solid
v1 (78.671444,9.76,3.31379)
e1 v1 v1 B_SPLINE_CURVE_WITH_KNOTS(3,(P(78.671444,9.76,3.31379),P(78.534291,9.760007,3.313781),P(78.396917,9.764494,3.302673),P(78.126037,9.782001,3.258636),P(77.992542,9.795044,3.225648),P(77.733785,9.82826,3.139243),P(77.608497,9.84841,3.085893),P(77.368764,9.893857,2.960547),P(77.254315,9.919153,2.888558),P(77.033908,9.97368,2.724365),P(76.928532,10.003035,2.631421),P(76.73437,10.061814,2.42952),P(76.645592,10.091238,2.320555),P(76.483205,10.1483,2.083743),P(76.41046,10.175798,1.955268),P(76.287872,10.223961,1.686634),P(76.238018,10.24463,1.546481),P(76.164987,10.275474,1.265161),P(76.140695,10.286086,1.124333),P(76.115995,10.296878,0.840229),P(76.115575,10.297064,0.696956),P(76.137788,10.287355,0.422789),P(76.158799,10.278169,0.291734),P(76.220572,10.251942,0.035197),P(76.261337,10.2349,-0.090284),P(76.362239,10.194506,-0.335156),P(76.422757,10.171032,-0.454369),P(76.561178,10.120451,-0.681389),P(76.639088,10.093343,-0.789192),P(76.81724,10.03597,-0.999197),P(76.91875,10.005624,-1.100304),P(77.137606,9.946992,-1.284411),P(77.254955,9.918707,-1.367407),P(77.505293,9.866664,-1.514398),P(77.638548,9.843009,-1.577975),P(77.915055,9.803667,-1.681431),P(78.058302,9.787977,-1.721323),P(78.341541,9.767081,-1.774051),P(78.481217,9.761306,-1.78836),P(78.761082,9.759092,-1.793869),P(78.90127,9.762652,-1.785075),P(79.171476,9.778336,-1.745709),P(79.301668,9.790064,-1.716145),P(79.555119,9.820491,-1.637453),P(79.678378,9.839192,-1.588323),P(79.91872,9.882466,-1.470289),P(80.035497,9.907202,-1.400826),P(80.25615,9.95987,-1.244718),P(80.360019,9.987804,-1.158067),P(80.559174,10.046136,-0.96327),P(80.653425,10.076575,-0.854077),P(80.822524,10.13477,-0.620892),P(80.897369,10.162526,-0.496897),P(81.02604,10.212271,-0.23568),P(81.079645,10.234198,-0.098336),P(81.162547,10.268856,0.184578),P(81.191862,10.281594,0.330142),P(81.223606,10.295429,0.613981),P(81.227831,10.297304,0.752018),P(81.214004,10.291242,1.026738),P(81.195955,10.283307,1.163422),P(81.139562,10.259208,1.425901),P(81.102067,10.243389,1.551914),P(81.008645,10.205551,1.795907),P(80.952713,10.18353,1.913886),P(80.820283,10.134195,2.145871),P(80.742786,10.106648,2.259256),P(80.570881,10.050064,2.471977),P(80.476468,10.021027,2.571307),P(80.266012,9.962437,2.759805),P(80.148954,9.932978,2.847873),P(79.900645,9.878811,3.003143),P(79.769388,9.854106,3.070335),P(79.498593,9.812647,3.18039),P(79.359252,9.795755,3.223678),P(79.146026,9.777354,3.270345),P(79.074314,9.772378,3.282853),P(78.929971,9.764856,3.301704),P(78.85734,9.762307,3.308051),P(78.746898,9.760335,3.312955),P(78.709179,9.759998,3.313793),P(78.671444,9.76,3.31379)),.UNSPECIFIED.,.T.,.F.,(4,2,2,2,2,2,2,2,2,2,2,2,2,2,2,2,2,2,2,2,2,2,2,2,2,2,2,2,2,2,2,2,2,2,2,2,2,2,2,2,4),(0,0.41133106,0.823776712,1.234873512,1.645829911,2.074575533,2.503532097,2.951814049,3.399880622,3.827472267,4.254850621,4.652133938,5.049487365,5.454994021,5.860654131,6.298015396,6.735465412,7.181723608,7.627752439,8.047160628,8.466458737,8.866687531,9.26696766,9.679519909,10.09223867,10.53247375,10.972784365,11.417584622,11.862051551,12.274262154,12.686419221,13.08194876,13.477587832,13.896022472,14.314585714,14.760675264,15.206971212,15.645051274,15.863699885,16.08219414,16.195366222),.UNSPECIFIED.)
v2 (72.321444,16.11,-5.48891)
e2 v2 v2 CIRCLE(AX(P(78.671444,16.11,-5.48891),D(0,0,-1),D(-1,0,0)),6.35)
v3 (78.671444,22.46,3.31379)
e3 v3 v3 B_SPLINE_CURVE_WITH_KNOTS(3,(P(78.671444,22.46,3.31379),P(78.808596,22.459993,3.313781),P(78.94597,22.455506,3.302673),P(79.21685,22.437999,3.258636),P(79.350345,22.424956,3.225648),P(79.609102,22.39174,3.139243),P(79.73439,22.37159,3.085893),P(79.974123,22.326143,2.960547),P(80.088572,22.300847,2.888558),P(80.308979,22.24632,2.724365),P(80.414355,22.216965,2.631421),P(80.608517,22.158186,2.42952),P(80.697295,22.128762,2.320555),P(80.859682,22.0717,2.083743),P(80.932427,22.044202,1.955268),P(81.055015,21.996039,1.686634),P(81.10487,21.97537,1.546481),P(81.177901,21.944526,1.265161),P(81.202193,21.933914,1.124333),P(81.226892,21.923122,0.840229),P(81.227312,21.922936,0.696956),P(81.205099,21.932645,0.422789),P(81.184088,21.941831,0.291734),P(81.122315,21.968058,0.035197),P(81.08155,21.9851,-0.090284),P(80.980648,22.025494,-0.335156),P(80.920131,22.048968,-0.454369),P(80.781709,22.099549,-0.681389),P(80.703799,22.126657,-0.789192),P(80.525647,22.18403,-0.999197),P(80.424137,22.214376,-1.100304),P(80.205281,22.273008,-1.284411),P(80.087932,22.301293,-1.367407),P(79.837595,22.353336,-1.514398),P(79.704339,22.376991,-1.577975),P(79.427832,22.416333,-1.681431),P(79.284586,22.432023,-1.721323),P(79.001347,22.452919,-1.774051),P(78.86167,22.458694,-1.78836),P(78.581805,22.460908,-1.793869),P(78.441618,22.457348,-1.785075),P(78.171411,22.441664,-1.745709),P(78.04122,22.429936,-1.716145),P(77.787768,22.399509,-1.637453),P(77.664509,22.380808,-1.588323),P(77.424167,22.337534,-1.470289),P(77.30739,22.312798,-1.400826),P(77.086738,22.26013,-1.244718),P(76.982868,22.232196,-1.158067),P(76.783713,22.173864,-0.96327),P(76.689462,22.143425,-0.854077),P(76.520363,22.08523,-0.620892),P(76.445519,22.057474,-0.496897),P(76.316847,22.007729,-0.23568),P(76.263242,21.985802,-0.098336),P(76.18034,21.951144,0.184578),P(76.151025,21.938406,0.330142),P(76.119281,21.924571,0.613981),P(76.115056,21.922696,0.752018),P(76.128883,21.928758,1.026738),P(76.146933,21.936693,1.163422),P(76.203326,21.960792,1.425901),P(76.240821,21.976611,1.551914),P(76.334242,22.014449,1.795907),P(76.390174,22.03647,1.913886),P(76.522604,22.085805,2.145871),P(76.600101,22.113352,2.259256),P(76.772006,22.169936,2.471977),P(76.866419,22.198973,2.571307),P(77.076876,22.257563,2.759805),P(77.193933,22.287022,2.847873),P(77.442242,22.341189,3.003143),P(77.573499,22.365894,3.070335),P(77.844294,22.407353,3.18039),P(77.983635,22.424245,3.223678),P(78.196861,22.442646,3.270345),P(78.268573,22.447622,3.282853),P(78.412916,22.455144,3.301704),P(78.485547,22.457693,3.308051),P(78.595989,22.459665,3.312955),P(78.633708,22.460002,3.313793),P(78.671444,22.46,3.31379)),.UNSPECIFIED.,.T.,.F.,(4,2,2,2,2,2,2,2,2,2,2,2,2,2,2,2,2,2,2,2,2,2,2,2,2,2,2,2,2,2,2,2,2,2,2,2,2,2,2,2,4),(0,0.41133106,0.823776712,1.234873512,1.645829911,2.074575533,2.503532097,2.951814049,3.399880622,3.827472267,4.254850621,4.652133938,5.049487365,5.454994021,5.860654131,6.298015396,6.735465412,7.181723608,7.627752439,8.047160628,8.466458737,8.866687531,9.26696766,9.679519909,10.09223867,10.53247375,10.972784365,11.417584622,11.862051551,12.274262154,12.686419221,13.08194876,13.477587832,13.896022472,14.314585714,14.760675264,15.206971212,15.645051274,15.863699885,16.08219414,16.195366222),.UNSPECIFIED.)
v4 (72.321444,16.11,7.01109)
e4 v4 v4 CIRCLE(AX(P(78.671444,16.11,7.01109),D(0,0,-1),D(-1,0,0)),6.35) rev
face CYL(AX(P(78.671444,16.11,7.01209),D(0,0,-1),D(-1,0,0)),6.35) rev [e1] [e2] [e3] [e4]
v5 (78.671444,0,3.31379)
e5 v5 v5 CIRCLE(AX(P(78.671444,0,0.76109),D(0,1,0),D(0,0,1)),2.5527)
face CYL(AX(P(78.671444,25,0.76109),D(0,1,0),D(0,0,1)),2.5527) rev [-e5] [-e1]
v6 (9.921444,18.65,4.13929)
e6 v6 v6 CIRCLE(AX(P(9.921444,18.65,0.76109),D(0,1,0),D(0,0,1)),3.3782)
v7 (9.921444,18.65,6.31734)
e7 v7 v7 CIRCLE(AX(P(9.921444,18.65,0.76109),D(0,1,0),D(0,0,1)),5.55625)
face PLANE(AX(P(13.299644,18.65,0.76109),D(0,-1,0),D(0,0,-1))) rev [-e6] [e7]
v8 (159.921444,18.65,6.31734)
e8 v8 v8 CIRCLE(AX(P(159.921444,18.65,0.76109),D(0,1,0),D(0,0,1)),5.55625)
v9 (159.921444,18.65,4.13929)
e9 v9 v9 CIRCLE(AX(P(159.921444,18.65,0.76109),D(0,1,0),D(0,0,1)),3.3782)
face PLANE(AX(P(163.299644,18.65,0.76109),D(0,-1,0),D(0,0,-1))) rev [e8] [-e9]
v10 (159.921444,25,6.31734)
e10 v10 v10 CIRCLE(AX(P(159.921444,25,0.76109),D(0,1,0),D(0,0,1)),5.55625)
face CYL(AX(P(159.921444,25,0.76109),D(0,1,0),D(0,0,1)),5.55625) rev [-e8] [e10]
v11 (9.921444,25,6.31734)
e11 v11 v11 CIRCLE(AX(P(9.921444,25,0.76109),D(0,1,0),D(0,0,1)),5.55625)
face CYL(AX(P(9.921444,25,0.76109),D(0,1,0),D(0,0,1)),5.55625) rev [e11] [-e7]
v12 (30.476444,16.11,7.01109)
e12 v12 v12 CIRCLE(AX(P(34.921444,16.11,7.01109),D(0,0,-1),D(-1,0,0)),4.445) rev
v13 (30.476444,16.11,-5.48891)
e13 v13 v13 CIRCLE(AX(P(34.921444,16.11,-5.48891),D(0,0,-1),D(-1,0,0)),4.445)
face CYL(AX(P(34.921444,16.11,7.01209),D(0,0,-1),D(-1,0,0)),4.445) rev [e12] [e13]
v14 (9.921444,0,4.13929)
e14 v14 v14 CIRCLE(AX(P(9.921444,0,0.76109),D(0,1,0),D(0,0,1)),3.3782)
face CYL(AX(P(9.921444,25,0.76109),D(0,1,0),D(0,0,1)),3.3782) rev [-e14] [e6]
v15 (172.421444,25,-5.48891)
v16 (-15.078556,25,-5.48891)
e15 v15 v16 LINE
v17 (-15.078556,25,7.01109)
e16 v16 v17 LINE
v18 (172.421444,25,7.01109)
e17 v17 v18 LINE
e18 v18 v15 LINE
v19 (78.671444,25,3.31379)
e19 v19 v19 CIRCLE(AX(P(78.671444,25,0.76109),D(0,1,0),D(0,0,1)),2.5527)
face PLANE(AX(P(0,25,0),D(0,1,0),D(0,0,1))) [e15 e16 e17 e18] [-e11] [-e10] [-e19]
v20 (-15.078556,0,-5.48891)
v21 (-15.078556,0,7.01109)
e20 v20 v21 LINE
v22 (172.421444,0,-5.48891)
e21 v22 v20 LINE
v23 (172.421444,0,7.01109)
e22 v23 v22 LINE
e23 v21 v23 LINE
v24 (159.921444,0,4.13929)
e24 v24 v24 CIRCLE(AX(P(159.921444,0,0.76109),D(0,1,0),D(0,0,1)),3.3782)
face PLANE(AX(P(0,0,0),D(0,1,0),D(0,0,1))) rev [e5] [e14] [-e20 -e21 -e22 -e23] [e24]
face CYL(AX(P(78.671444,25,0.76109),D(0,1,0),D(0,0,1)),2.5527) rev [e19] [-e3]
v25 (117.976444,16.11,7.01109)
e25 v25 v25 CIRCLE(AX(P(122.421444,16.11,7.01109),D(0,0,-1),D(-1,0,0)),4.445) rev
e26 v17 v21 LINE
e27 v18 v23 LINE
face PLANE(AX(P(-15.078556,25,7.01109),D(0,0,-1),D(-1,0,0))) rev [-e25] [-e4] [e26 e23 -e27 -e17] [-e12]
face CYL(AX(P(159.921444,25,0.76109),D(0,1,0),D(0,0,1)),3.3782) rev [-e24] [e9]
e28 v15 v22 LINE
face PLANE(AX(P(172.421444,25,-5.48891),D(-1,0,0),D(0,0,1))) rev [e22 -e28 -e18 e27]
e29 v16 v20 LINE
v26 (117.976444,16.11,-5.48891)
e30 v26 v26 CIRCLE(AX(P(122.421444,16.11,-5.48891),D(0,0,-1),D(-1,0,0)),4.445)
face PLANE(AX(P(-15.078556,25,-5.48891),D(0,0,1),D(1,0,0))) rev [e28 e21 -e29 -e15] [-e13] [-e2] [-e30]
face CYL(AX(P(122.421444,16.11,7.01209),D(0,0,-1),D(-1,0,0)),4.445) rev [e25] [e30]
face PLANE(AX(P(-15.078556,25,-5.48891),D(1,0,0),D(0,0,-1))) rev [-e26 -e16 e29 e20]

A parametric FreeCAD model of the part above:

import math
import FreeCAD as App
import Part
import Sketcher
Q = App.Units.Quantity


def add_polygon(sketch, points):
    """Adds a closed chain of lines whose ends are joined by coincident constraints."""
    first, n = sketch.GeometryCount, len(points)
    for a, b in zip(points, points[1:] + points[:1]):
        sketch.addGeometry(Part.LineSegment(App.Vector(*a, 0), App.Vector(*b, 0)), False)
    for i in range(n):
        sketch.addConstraint(Sketcher.Constraint("Coincident", first + i, 2, first + (i + 1) % n, 1))

doc = App.newDocument("Part")
body = doc.addObject("PartDesign::Body", "Body")

# Sketch on XZ plane
sketch1 = body.newObject("Sketcher::SketchObject", "Sketch")
sketch1.AttachmentSupport = (doc.getObject("XZ_Plane"), [""])
sketch1.MapMode = "FlatFace"
add_polygon(sketch1, [(-15, -5), (-15, 7), (172, 7), (172, -5)])  # lines 0-3
sketch1.addConstraint([
    Sketcher.Constraint("Vertical", 0),
    Sketcher.Constraint("Horizontal", 1),
    Sketcher.Constraint("Vertical", 2),
    Sketcher.Constraint("Horizontal", 3),
    Sketcher.Constraint("DistanceX", 1, 1, 1, 2, 187.5),
    Sketcher.Constraint("DistanceY", 0, 1, 0, 2, 12.5),
    Sketcher.Constraint("DistanceY", -1, 1, 0, 2, 7.01109),
    Sketcher.Constraint("DistanceX", 0, 2, -1, 1, 15.078556),
])
pad1 = body.newObject("PartDesign::Pad", "Pad")
pad1.Profile = sketch1
pad1.Length = 25
pad1.Reversed = True

# Sketch on XZ plane
sketch2 = body.newObject("Sketcher::SketchObject", "Sketch001")
sketch2.AttachmentSupport = (doc.getObject("XZ_Plane"), [""])
sketch2.MapMode = "FlatFace"
sketch2.AttachmentOffset = App.Placement(App.Vector(0, 0, -25), App.Rotation())
sketch2.addGeometry([
    Part.Circle(App.Vector(9.9, 0.8, 0), App.Vector(0, 0, 1), 3.4),
    Part.Circle(App.Vector(159.9, 0.8, 0), App.Vector(0, 0, 1), 3.4),
], False)
sketch2.addConstraint([
    Sketcher.Constraint("Equal", 0, 1),
    Sketcher.Constraint("Horizontal", 0, 3, 1, 3),
    Sketcher.Constraint("Diameter", 0, Q("0.266 in")),
    Sketcher.Constraint("DistanceX", 0, 3, 1, 3, 150.0),
    Sketcher.Constraint("DistanceY", -1, 1, 0, 3, 0.76109),
    Sketcher.Constraint("DistanceX", -1, 1, 0, 3, 9.921444),
])
doc.recompute()
hole = body.newObject("PartDesign::Hole", "Hole")
hole.Profile = sketch2
hole.ThreadType = "None"
hole.Diameter = Q("0.266 in")
hole.DepthType = "ThroughAll"
hole.HoleCutType = "Counterbore"
hole.HoleCutDiameter = Q("0.4375 in")
hole.HoleCutDepth = Q("0.25 in")
hole.Reversed = True

# Sketch on XY plane
sketch3 = body.newObject("Sketcher::SketchObject", "Sketch002")
sketch3.AttachmentSupport = (doc.getObject("XY_Plane"), [""])
sketch3.MapMode = "FlatFace"
sketch3.AttachmentOffset = App.Placement(App.Vector(0, 0, -5.48891), App.Rotation())
sketch3.addGeometry([
    Part.ArcOfCircle(Part.Circle(App.Vector(34.9, 16.1, 0), App.Vector(0, 0, 1), 4.4), math.radians(0), math.radians(180)),
    Part.LineSegment(App.Vector(39.4, 16.1, 0), App.Vector(30.5, 16.1, 0)),
], False)
sketch3.addConstraint([
    Sketcher.Constraint("Coincident", 0, 1, 1, 1),
    Sketcher.Constraint("Coincident", 1, 2, 0, 2),
    Sketcher.Constraint("Horizontal", 1),
    Sketcher.Constraint("Radius", 0, Q("0.175 in")),
    Sketcher.Constraint("DistanceY", -1, 1, 0, 3, 16.11),
    Sketcher.Constraint("DistanceY", -1, 1, 0, 1, 16.11),
    Sketcher.Constraint("DistanceX", -1, 1, 0, 3, 34.921444),
])
pocket1 = body.newObject("PartDesign::Pocket", "Pocket")
pocket1.Profile = sketch3
pocket1.Type = "UpToFirst"
pocket1.Reversed = True

# Sketch on XY plane
sketch4 = body.newObject("Sketcher::SketchObject", "Sketch003")
sketch4.AttachmentSupport = (doc.getObject("XY_Plane"), [""])
sketch4.MapMode = "FlatFace"
sketch4.AttachmentOffset = App.Placement(App.Vector(0, 0, -5.48891), App.Rotation())
sketch4.addGeometry([
    Part.LineSegment(App.Vector(30.5, 16.1, 0), App.Vector(39.4, 16.1, 0)),
    Part.ArcOfCircle(Part.Circle(App.Vector(34.9, 16.1, 0), App.Vector(0, 0, 1), 4.4), math.radians(180), math.radians(360)),
], False)
sketch4.addConstraint([
    Sketcher.Constraint("Coincident", 0, 1, 1, 1),
    Sketcher.Constraint("Coincident", 1, 2, 0, 2),
    Sketcher.Constraint("Horizontal", 0),
    Sketcher.Constraint("Horizontal", 1, 3, 0, 1),
    Sketcher.Constraint("Radius", 1, Q("0.175 in")),
    Sketcher.Constraint("DistanceY", -1, 1, 1, 3, 16.11),
    Sketcher.Constraint("DistanceX", -1, 1, 1, 3, 34.921444),
])
pocket2 = body.newObject("PartDesign::Pocket", "Pocket001")
pocket2.Profile = sketch4
pocket2.Type = "UpToFirst"
pocket2.Reversed = True

# Sketch on XY plane
sketch5 = body.newObject("Sketcher::SketchObject", "Sketch004")
sketch5.AttachmentSupport = (doc.getObject("XY_Plane"), [""])
sketch5.MapMode = "FlatFace"
sketch5.AttachmentOffset = App.Placement(App.Vector(0, 0, -5.48891), App.Rotation())
sketch5.addGeometry([
    Part.ArcOfCircle(Part.Circle(App.Vector(34.9, 16.1, 0), App.Vector(0, 0, 1), 4.4), math.radians(0), math.radians(180)),
    Part.LineSegment(App.Vector(39.4, 16.1, 0), App.Vector(30.5, 16.1, 0)),
], False)
sketch5.addConstraint([
    Sketcher.Constraint("Coincident", 0, 1, 1, 1),
    Sketcher.Constraint("Coincident", 1, 2, 0, 2),
    Sketcher.Constraint("Horizontal", 1),
    Sketcher.Constraint("Radius", 0, Q("0.175 in")),
    Sketcher.Constraint("DistanceY", -1, 1, 0, 3, 16.11),
    Sketcher.Constraint("DistanceY", -1, 1, 0, 1, 16.11),
    Sketcher.Constraint("DistanceX", -1, 1, 0, 3, 34.921444),
])
pocket3 = body.newObject("PartDesign::Pocket", "Pocket002")
pocket3.Profile = sketch5
pocket3.Length = 12.5
pocket3.Reversed = True

# Sketch on XY plane
sketch6 = body.newObject("Sketcher::SketchObject", "Sketch005")
sketch6.AttachmentSupport = (doc.getObject("XY_Plane"), [""])
sketch6.MapMode = "FlatFace"
sketch6.AttachmentOffset = App.Placement(App.Vector(0, 0, -5.48891), App.Rotation())
sketch6.addGeometry([
    Part.LineSegment(App.Vector(30.5, 16.1, 0), App.Vector(39.4, 16.1, 0)),
    Part.ArcOfCircle(Part.Circle(App.Vector(34.9, 16.1, 0), App.Vector(0, 0, 1), 4.4), math.radians(180), math.radians(360)),
], False)
sketch6.addConstraint([
    Sketcher.Constraint("Coincident", 0, 1, 1, 1),
    Sketcher.Constraint("Coincident", 1, 2, 0, 2),
    Sketcher.Constraint("Horizontal", 0),
    Sketcher.Constraint("Horizontal", 1, 3, 0, 1),
    Sketcher.Constraint("Radius", 1, Q("0.175 in")),
    Sketcher.Constraint("DistanceY", -1, 1, 1, 3, 16.11),
    Sketcher.Constraint("DistanceX", -1, 1, 1, 3, 34.921444),
])
pocket4 = body.newObject("PartDesign::Pocket", "Pocket003")
pocket4.Profile = sketch6
pocket4.Length = 12.5
pocket4.Reversed = True

# Sketch on XY plane
sketch7 = body.newObject("Sketcher::SketchObject", "Sketch006")
sketch7.AttachmentSupport = (doc.getObject("XY_Plane"), [""])
sketch7.MapMode = "FlatFace"
sketch7.AttachmentOffset = App.Placement(App.Vector(0, 0, -5.48891), App.Rotation())
sketch7.addGeometry(Part.Circle(App.Vector(122.4, 16.1, 0), App.Vector(0, 0, 1), 4.4), False)
sketch7.addConstraint([
    Sketcher.Constraint("Diameter", 0, Q("0.35 in")),
    Sketcher.Constraint("DistanceY", -1, 1, 0, 3, 16.11),
    Sketcher.Constraint("DistanceX", -1, 1, 0, 3, 122.421444),
])
pocket5 = body.newObject("PartDesign::Pocket", "Pocket004")
pocket5.Profile = sketch7
pocket5.Type = "UpToFirst"
pocket5.Reversed = True

# Sketch on XY plane
sketch8 = body.newObject("Sketcher::SketchObject", "Sketch007")
sketch8.AttachmentSupport = (doc.getObject("XY_Plane"), [""])
sketch8.MapMode = "FlatFace"
sketch8.AttachmentOffset = App.Placement(App.Vector(0, 0, -5.48891), App.Rotation())
sketch8.addGeometry(Part.Circle(App.Vector(79, 16, 0), App.Vector(0, 0, 1), 6), False)
sketch8.addConstraint([
    Sketcher.Constraint("Diameter", 0, Q("0.5 in")),
    Sketcher.Constraint("DistanceY", -1, 1, 0, 3, 16.11),
    Sketcher.Constraint("DistanceX", -1, 1, 0, 3, 78.671444),
])
pocket6 = body.newObject("PartDesign::Pocket", "Pocket005")
pocket6.Profile = sketch8
pocket6.Type = "UpToFirst"
pocket6.Reversed = True

# Sketch on XZ plane
sketch9 = body.newObject("Sketcher::SketchObject", "Sketch008")
sketch9.AttachmentSupport = (doc.getObject("XZ_Plane"), [""])
sketch9.MapMode = "FlatFace"
sketch9.AttachmentOffset = App.Placement(App.Vector(0, 0, -25), App.Rotation())
sketch9.addGeometry(Part.Circle(App.Vector(78.7, 0.8, 0), App.Vector(0, 0, 1), 2.6), False)
sketch9.addConstraint([
    Sketcher.Constraint("Diameter", 0, Q("0.201 in")),
    Sketcher.Constraint("DistanceY", -1, 1, 0, 3, 0.76109),
    Sketcher.Constraint("DistanceX", -1, 1, 0, 3, 78.671444),
])
doc.recompute()
hole2 = body.newObject("PartDesign::Hole", "Hole001")
hole2.Profile = sketch9
hole2.ThreadType = "None"
hole2.Diameter = Q("0.201 in")
hole2.DepthType = "ThroughAll"
hole2.Reversed = True

doc.recompute()
